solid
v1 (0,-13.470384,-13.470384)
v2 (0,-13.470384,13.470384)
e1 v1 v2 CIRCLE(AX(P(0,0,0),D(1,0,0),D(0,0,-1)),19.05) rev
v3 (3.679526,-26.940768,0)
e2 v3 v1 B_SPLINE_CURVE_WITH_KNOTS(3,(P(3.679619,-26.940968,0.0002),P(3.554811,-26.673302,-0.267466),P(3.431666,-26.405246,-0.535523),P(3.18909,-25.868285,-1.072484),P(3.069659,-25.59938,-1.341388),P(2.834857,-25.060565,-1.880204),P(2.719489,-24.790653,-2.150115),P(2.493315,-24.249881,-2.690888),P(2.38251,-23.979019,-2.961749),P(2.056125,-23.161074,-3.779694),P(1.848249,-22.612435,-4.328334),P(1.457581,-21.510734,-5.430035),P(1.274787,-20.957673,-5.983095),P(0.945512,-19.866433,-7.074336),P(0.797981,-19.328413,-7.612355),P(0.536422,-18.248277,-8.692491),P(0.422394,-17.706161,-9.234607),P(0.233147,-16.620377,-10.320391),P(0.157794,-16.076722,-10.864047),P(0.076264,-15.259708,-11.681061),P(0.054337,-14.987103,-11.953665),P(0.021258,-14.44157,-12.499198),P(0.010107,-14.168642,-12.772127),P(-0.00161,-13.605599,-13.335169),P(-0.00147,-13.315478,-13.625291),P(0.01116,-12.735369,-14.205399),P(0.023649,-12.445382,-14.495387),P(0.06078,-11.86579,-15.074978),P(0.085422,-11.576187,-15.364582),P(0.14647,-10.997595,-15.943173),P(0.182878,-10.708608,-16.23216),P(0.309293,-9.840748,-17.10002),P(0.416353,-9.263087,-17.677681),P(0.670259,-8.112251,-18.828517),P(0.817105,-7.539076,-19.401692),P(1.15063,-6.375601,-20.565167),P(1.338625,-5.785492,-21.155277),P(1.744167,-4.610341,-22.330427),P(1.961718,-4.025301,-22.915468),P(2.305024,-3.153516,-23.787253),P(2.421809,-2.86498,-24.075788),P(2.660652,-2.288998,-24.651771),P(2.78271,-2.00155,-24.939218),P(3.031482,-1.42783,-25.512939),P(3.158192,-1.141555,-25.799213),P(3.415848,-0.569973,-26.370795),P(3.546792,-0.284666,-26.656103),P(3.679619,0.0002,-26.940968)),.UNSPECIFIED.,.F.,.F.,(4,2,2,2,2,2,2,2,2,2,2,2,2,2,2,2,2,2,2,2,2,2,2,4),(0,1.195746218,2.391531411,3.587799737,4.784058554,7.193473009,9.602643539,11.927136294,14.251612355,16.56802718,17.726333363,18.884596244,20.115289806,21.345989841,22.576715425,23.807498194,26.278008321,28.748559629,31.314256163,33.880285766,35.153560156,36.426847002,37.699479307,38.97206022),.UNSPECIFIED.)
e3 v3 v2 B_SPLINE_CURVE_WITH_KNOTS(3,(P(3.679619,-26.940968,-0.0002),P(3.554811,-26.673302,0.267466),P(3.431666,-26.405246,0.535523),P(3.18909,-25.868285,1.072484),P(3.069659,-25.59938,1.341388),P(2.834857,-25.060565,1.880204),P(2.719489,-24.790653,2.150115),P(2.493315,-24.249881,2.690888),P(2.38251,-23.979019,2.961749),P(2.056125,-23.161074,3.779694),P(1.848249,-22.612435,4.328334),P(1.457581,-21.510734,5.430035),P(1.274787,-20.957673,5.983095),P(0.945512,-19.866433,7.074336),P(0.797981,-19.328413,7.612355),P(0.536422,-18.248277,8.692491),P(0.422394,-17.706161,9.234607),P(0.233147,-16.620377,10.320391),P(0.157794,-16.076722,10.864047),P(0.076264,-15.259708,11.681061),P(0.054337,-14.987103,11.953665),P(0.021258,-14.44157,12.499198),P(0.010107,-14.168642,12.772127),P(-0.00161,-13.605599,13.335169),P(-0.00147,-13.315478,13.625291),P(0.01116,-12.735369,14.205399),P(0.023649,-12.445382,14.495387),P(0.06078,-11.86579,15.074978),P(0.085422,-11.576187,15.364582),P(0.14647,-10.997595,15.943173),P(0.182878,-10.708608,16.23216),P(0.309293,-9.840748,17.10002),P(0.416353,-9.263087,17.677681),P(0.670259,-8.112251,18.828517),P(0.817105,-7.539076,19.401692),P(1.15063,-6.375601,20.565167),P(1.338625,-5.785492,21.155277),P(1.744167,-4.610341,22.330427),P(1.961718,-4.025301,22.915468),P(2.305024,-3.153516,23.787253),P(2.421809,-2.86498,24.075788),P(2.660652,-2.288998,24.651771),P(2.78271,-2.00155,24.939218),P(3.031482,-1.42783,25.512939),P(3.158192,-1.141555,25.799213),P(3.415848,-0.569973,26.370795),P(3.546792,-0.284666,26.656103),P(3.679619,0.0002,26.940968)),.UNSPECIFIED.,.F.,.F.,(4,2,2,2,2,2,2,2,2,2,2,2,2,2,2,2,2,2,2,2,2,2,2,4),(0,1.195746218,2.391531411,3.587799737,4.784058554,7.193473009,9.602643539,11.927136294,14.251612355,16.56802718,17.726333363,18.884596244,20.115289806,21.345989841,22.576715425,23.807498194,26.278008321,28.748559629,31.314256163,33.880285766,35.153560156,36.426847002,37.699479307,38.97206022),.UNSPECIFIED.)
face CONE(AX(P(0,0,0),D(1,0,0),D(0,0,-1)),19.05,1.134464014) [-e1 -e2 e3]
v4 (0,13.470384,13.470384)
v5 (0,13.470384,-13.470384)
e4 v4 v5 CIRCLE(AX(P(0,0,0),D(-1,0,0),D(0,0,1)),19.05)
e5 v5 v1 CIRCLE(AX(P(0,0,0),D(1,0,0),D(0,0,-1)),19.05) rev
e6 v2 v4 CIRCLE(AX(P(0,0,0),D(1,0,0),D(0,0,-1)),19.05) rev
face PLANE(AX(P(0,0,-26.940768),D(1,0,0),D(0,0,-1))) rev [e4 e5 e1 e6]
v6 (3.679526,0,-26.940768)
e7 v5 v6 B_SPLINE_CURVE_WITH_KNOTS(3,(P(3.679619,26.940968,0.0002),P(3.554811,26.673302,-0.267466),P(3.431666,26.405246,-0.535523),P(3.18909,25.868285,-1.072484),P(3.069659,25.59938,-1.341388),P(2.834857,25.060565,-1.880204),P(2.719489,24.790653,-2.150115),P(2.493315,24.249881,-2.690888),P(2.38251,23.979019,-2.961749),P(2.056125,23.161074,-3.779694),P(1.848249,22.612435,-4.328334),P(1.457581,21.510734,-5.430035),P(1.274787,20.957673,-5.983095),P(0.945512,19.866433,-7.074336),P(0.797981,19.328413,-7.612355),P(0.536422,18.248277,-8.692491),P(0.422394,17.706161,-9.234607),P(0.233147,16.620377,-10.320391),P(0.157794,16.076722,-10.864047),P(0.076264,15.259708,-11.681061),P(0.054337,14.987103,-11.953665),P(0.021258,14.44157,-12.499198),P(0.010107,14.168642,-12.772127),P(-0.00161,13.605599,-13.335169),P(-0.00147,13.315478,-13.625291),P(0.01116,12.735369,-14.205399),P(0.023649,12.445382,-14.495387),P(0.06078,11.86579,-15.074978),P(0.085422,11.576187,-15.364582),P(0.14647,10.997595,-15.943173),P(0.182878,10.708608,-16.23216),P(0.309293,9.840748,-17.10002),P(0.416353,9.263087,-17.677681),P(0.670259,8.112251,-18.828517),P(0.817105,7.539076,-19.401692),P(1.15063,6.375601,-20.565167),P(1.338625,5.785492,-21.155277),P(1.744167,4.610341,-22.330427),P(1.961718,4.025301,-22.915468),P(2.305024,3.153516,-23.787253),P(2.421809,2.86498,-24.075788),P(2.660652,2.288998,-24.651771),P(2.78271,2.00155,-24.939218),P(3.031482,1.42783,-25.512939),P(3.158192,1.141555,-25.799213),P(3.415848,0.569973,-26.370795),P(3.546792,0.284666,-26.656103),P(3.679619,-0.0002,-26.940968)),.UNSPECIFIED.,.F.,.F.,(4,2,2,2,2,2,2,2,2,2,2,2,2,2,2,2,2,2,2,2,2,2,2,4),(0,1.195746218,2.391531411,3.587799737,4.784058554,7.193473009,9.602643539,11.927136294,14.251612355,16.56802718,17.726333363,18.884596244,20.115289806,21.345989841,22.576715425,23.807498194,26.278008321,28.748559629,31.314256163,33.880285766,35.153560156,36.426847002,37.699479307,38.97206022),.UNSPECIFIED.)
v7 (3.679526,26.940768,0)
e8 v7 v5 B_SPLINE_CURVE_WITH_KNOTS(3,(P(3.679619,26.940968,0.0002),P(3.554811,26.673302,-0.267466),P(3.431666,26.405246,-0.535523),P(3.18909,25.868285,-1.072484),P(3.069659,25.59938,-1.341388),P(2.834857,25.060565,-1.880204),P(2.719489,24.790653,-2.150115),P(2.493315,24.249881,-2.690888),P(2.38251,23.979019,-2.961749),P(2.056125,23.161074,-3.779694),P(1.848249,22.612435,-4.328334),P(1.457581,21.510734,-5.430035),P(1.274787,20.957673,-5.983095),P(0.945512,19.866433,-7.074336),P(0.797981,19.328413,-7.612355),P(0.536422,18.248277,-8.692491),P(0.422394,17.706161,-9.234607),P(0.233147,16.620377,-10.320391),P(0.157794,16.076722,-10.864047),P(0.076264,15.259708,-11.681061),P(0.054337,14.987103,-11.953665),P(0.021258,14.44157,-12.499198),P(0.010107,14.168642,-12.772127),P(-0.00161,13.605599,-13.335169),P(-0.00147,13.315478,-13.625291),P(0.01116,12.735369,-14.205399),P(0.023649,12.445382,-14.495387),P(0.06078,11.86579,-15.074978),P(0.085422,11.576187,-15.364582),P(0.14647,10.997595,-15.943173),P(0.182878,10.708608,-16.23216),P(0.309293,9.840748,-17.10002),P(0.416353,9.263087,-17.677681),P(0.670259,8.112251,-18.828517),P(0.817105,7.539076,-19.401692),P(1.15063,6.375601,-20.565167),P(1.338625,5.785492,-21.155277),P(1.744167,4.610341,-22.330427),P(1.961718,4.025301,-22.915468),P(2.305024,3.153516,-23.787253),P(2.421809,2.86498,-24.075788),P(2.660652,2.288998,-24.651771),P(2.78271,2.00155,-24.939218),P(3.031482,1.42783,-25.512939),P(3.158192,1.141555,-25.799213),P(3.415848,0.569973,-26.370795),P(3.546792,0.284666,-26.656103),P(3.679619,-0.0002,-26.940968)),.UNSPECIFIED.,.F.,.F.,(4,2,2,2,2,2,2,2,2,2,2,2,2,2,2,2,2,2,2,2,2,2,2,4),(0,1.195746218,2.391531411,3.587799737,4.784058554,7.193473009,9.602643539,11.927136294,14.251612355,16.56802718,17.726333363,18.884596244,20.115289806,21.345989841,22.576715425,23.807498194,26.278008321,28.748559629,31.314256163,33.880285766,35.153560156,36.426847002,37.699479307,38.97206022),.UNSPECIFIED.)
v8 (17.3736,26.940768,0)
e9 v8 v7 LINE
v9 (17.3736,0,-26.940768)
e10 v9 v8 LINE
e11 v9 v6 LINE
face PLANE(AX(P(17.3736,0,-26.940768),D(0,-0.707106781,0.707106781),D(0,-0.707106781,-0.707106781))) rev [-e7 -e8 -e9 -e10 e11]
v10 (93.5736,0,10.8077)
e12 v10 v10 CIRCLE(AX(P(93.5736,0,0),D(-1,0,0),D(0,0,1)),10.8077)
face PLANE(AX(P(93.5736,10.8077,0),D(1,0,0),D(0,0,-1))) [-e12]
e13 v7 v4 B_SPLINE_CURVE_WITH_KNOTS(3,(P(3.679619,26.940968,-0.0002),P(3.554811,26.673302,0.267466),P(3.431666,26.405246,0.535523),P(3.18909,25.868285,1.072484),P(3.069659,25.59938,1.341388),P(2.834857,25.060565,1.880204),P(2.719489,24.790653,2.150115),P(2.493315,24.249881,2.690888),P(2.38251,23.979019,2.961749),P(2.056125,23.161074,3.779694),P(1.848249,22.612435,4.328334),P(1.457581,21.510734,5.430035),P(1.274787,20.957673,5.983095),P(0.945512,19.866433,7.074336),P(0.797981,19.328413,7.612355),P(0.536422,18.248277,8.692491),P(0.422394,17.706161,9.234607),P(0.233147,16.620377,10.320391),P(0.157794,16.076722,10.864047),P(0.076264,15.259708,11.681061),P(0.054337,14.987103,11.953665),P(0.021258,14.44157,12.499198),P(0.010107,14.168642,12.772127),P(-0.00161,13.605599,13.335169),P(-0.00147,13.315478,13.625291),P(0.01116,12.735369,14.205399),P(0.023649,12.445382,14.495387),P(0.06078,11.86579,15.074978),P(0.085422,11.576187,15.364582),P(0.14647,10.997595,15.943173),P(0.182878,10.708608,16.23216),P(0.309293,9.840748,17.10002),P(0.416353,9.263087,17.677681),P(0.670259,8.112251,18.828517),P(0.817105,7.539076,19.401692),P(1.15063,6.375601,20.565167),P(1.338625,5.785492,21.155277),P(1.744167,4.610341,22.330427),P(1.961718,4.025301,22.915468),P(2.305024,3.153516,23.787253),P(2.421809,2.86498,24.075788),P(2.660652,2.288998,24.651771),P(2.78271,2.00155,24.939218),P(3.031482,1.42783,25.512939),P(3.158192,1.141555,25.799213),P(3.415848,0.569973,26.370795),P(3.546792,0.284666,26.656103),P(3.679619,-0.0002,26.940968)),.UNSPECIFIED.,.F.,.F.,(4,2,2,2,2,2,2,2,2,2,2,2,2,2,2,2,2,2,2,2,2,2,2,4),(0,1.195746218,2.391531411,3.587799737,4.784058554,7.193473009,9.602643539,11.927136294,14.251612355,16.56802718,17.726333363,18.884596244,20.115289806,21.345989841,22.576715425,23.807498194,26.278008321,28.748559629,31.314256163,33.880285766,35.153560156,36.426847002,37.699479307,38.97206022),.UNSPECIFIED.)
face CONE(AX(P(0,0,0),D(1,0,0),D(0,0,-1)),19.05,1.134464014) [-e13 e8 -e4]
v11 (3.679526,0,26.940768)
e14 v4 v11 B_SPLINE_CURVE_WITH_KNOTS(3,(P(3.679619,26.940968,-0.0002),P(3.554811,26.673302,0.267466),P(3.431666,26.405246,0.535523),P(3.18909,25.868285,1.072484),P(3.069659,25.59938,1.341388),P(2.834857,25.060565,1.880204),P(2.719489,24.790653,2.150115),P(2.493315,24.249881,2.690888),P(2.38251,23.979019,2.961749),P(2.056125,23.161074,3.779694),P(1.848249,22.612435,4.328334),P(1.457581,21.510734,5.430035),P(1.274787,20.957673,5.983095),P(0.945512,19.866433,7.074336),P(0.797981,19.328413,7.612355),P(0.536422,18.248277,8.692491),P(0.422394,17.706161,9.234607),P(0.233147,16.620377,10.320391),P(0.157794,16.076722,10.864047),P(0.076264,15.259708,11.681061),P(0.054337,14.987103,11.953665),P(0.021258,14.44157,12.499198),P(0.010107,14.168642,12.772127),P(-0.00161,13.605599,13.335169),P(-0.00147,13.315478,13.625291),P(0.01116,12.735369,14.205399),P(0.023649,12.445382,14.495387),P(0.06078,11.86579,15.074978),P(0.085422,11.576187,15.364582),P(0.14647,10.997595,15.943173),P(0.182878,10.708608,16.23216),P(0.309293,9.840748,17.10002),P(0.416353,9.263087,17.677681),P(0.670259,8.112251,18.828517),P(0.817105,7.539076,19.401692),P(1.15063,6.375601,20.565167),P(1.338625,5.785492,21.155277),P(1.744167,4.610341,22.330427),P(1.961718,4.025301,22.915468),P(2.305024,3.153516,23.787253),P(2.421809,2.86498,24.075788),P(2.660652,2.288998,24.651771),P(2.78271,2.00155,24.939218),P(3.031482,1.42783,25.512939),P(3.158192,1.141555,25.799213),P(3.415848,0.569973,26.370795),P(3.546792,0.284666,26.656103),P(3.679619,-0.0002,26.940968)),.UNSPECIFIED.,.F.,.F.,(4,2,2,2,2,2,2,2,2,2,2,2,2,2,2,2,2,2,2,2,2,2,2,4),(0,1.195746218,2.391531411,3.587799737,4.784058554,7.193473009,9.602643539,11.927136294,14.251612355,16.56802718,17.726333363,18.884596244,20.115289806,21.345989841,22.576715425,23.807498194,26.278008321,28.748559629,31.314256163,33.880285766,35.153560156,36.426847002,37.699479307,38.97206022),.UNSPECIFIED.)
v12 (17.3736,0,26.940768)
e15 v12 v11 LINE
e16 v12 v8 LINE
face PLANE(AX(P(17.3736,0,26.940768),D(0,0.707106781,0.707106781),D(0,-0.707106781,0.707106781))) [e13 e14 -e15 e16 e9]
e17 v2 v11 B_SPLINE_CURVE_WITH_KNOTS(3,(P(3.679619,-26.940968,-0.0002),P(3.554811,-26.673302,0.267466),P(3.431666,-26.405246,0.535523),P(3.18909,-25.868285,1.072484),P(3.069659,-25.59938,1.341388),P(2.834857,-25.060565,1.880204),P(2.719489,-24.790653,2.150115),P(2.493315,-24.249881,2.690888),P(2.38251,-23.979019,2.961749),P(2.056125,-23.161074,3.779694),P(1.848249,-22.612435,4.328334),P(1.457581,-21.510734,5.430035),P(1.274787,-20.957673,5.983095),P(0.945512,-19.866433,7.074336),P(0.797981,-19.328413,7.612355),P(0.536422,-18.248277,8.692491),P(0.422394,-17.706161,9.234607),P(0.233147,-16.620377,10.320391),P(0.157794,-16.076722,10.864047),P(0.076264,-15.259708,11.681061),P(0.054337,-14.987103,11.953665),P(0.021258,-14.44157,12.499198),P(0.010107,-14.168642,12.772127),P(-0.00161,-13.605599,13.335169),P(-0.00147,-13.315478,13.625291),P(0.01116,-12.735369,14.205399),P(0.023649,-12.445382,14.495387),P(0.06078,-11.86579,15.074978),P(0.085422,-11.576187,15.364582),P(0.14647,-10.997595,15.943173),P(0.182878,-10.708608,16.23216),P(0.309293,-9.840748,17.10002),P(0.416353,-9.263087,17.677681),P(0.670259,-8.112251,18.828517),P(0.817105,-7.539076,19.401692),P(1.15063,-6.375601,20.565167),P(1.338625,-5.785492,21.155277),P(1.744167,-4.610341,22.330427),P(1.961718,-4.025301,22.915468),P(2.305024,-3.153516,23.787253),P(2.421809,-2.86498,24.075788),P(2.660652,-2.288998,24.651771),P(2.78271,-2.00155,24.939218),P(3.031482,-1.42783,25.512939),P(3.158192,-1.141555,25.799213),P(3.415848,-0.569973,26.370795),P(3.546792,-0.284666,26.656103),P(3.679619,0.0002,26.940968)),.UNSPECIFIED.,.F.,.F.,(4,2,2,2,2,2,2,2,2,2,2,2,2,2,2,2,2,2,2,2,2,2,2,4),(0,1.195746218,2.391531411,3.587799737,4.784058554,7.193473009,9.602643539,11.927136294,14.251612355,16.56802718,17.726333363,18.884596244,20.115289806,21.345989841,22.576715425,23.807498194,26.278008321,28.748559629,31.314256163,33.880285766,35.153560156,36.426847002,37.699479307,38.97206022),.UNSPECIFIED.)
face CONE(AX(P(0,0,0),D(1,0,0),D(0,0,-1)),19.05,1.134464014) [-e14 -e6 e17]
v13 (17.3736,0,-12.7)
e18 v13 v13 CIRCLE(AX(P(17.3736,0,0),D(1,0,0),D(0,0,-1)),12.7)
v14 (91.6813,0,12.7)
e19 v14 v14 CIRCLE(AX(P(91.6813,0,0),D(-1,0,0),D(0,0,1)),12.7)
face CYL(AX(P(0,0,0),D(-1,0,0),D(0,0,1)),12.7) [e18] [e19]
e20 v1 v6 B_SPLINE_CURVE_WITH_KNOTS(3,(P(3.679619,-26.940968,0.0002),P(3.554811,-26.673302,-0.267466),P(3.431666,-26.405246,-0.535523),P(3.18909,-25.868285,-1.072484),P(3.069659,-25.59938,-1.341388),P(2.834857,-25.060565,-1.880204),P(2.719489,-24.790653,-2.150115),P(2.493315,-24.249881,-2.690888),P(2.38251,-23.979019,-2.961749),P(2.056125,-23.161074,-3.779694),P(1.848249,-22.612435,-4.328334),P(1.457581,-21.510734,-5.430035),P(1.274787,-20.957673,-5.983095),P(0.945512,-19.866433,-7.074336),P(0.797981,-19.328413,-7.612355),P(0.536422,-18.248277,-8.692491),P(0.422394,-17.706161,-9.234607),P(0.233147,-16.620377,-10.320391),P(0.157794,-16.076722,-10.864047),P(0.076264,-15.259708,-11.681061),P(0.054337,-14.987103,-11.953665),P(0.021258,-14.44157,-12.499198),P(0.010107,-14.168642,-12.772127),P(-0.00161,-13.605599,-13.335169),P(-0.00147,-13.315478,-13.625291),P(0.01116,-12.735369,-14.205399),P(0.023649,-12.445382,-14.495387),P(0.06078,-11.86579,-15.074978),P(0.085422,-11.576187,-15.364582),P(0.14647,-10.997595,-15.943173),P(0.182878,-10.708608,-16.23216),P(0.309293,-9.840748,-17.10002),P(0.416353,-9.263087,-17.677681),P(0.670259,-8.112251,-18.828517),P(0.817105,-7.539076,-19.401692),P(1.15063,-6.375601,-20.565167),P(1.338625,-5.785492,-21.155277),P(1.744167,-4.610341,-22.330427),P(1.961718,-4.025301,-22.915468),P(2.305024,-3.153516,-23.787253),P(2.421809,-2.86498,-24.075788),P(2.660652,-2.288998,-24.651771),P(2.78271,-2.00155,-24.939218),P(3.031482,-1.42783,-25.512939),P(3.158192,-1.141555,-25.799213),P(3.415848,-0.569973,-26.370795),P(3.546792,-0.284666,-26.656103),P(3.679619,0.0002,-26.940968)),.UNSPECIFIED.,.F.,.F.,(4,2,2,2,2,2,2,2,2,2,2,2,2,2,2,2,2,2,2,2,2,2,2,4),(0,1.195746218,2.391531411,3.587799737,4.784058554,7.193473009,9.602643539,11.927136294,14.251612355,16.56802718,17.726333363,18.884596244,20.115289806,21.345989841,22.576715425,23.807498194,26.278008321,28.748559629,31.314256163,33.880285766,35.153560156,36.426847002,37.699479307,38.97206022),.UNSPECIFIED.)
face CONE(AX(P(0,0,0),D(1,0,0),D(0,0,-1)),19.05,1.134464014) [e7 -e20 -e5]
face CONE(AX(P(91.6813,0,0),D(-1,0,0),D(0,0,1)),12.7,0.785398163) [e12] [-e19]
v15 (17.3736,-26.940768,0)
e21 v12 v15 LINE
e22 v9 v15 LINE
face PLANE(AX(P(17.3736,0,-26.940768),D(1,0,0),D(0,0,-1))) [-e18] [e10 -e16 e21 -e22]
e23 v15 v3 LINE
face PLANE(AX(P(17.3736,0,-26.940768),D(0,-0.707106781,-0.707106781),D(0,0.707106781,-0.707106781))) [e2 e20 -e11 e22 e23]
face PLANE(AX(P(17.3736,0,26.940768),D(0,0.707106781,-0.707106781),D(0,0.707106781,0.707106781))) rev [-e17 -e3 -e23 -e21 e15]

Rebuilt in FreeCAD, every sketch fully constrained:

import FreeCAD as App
import Part
import Sketcher
Q = App.Units.Quantity


def add_polygon(sketch, points):
    """Adds a closed chain of lines whose ends are joined by coincident constraints."""
    first, n = sketch.GeometryCount, len(points)
    for a, b in zip(points, points[1:] + points[:1]):
        sketch.addGeometry(Part.LineSegment(App.Vector(*a, 0), App.Vector(*b, 0)), False)
    for i in range(n):
        sketch.addConstraint(Sketcher.Constraint("Coincident", first + i, 2, first + (i + 1) % n, 1))

doc = App.newDocument("Part")
body = doc.addObject("PartDesign::Body", "Body")

sketch1 = body.newObject("Sketcher::SketchObject", "Sketch")
sketch1.AttachmentSupport = (doc.getObject("YZ_Plane"), [""])
sketch1.MapMode = "FlatFace"
add_polygon(sketch1, [(0, 27), (-27, 0), (0, -27), (27, 0)])
sketch1.addConstraint([
    Sketcher.Constraint("Symmetric", 0, 2, 2, 2, -1, 1),
    Sketcher.Constraint("Symmetric", 1, 2, 3, 2, -1, 1),
    Sketcher.Constraint("PointOnObject", 0, 2, -1),
    Sketcher.Constraint("PointOnObject", 1, 2, -2),
    Sketcher.Constraint("Perpendicular", 0, 1),
    Sketcher.Constraint("Distance", 0, Q("1.5 in")),
])
pad1 = body.newObject("PartDesign::Pad", "Pad")
pad1.Profile = sketch1
pad1.Length = Q("0.684 in")

sketch2 = body.newObject("Sketcher::SketchObject", "Sketch001")
sketch2.AttachmentSupport = (doc.getObject("XY_Plane"), [""])
sketch2.MapMode = "FlatFace"
add_polygon(sketch2, [(17.4, 12.7), (17.4, 0), (93.6, 0), (93.6, 10.8), (91.7, 12.7)])
sketch2.addConstraint([
    Sketcher.Constraint("Vertical", 0),
    Sketcher.Constraint("Horizontal", 1),
    Sketcher.Constraint("Vertical", 2),
    Sketcher.Constraint("Horizontal", 4),
    Sketcher.Constraint("PointOnObject", 0, 2, -1),
    Sketcher.Constraint("DistanceX", 1, 1, 1, 2, Q("3 in")),
    Sketcher.Constraint("DistanceY", 0, 2, 0, 1, Q("0.5 in")),
    Sketcher.Constraint("Angle", 3, Q("135 deg")),
    Sketcher.Constraint("DistanceX", 4, 2, 4, 1, Q("2.9255 in")),
    Sketcher.Constraint("DistanceX", -1, 1, 0, 2, Q("0.684 in")),
])
revolution = body.newObject("PartDesign::Revolution", "Revolution")
revolution.Profile = sketch2
revolution.ReferenceAxis = (sketch2, ["H_Axis"])
revolution.Angle = 360

sketch3 = body.newObject("Sketcher::SketchObject", "Sketch002")
sketch3.AttachmentSupport = (doc.getObject("XY_Plane"), [""])
sketch3.MapMode = "FlatFace"
add_polygon(sketch3, [(-13, 19), (0, 19), (16, 52), (-13, 52)])
sketch3.addConstraint([
    Sketcher.Constraint("Horizontal", 0),
    Sketcher.Constraint("Horizontal", 2),
    Sketcher.Constraint("Vertical", 3),
    Sketcher.Constraint("PointOnObject", 0, 2, -2),
    Sketcher.Constraint("DistanceX", 0, 1, 0, 2, Q("0.5 in")),
    Sketcher.Constraint("Angle", 1, Q("65 deg")),
    Sketcher.Constraint("DistanceY", -1, 1, 0, 2, Q("0.75 in")),
    Sketcher.Constraint("Distance", 1, 36.732299),
])
groove = body.newObject("PartDesign::Groove", "Groove")
groove.Profile = sketch3
groove.ReferenceAxis = (sketch3, ["H_Axis"])
groove.Angle = 360

doc.recompute()
